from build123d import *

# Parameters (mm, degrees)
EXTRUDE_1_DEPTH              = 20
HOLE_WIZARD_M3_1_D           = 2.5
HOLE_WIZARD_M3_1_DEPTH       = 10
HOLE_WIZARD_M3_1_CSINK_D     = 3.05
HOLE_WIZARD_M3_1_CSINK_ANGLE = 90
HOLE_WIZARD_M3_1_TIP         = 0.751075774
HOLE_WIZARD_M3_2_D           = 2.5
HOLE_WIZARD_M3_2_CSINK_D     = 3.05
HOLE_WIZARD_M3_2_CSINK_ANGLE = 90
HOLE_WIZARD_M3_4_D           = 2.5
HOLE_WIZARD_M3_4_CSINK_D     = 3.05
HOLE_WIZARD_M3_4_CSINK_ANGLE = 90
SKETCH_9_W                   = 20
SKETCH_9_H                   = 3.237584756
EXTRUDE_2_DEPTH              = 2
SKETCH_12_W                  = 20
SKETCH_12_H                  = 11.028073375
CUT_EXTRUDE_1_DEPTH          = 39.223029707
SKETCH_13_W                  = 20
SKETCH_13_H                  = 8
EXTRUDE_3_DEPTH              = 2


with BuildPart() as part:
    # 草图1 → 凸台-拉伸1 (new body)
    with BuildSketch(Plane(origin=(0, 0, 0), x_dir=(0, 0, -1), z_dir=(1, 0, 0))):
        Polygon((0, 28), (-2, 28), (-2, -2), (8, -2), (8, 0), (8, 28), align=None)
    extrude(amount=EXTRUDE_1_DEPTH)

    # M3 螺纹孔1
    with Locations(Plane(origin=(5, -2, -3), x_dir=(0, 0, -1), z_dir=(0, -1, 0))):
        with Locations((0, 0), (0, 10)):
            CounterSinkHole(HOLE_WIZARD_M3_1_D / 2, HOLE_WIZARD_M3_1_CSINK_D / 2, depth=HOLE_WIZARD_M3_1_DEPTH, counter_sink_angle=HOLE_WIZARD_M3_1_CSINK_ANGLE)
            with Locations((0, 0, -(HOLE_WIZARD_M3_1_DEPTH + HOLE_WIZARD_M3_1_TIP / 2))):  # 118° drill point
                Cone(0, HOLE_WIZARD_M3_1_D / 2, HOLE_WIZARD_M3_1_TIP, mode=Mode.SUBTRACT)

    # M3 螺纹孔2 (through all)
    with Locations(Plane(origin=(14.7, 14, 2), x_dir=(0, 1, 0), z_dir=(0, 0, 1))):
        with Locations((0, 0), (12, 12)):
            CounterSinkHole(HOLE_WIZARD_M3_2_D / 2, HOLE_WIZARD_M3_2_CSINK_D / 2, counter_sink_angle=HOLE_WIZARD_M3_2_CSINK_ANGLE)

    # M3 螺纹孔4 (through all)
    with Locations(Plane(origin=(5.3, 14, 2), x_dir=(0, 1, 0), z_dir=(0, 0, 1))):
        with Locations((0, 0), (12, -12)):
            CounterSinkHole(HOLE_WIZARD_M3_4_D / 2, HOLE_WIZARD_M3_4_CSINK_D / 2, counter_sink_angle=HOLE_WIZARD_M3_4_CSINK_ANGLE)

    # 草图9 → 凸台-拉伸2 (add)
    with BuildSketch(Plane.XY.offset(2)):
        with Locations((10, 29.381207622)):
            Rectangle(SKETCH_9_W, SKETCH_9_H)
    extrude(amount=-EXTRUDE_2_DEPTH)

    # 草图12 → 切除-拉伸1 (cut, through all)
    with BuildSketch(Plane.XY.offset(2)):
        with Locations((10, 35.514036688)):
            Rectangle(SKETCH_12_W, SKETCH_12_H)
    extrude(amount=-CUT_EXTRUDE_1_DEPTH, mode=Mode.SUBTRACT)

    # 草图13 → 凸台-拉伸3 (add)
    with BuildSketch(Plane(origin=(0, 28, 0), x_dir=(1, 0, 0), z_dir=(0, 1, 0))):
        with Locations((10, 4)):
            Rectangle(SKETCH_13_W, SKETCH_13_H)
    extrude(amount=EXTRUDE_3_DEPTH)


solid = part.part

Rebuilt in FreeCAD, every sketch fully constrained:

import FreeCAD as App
import Part
import Sketcher


def add_polygon(sketch, points):
    """Adds a closed chain of lines whose ends are joined by coincident constraints."""
    first, n = sketch.GeometryCount, len(points)
    for a, b in zip(points, points[1:] + points[:1]):
        sketch.addGeometry(Part.LineSegment(App.Vector(*a, 0), App.Vector(*b, 0)), False)
    for i in range(n):
        sketch.addConstraint(Sketcher.Constraint("Coincident", first + i, 2, first + (i + 1) % n, 1))

doc = App.newDocument("Part")
body = doc.addObject("PartDesign::Body", "Body")

# Sketch on YZ plane
sketch1 = body.newObject("Sketcher::SketchObject", "Sketch")
sketch1.AttachmentSupport = (doc.getObject("YZ_Plane"), [""])
sketch1.MapMode = "FlatFace"
add_polygon(sketch1, [(28, 2), (-2, 2), (-2, -8), (28, -8)])  # lines 0-3
sketch1.addConstraint([
    Sketcher.Constraint("Horizontal", 0),
    Sketcher.Constraint("Vertical", 1),
    Sketcher.Constraint("Horizontal", 2),
    Sketcher.Constraint("Vertical", 3),
    Sketcher.Constraint("DistanceX", 0, 2, 0, 1, 30.0),
    Sketcher.Constraint("DistanceY", 1, 2, 1, 1, 10.0),
    Sketcher.Constraint("DistanceX", 0, 2, -1, 1, 2.0),
    Sketcher.Constraint("DistanceY", -1, 1, 0, 2, 2.0),
])
pad1 = body.newObject("PartDesign::Pad", "Pad")
pad1.Profile = sketch1
pad1.Length = 20

# Sketch on XZ plane
sketch2 = body.newObject("Sketcher::SketchObject", "Sketch001")
sketch2.AttachmentSupport = (doc.getObject("XZ_Plane"), [""])
sketch2.MapMode = "FlatFace"
sketch2.AttachmentOffset = App.Placement(App.Vector(0, 0, 2), App.Rotation())
sketch2.addGeometry([
    Part.Circle(App.Vector(5, -3, 0), App.Vector(0, 0, 1), 1.2),
    Part.Circle(App.Vector(15, -3, 0), App.Vector(0, 0, 1), 1.2),
], False)
sketch2.addConstraint([
    Sketcher.Constraint("Equal", 0, 1),
    Sketcher.Constraint("Horizontal", 0, 3, 1, 3),
    Sketcher.Constraint("Diameter", 0, 2.5),
    Sketcher.Constraint("DistanceX", -1, 1, 0, 3, 5.0),
    Sketcher.Constraint("DistanceY", 0, 3, -1, 1, 3.0),
    Sketcher.Constraint("DistanceX", -1, 1, 1, 3, 15.0),
])
doc.recompute()
hole = body.newObject("PartDesign::Hole", "Hole")
hole.Profile = sketch2
hole.ThreadType = "None"
hole.Diameter = 2.5
hole.DepthType = "Dimension"
hole.Depth = 10
hole.DrillPoint = "Angled"
hole.DrillPointAngle = 118
hole.HoleCutType = "Countersink"
hole.HoleCutDiameter = 3.05
hole.HoleCutCountersinkAngle = 90

# Sketch on XY plane
sketch3 = body.newObject("Sketcher::SketchObject", "Sketch002")
sketch3.AttachmentSupport = (doc.getObject("XY_Plane"), [""])
sketch3.MapMode = "FlatFace"
sketch3.AttachmentOffset = App.Placement(App.Vector(0, 0, 2), App.Rotation())
sketch3.addGeometry([
    Part.Circle(App.Vector(14.7, 14, 0), App.Vector(0, 0, 1), 1.2),
    Part.Circle(App.Vector(2.7, 26, 0), App.Vector(0, 0, 1), 1.2),
], False)
sketch3.addConstraint([
    Sketcher.Constraint("Equal", 0, 1),
    Sketcher.Constraint("Diameter", 0, 2.5),
    Sketcher.Constraint("DistanceY", -1, 1, 0, 3, 14.0),
    Sketcher.Constraint("DistanceY", -1, 1, 1, 3, 26.0),
    Sketcher.Constraint("DistanceX", 1, 3, 0, 3, 12.0),
    Sketcher.Constraint("DistanceX", -1, 1, 0, 3, 14.7),
])
doc.recompute()
hole2 = body.newObject("PartDesign::Hole", "Hole001")
hole2.Profile = sketch3
hole2.ThreadType = "None"
hole2.Diameter = 2.5
hole2.DepthType = "ThroughAll"
hole2.HoleCutType = "Countersink"
hole2.HoleCutDiameter = 3.05
hole2.HoleCutCountersinkAngle = 90

# Sketch on XY plane
sketch4 = body.newObject("Sketcher::SketchObject", "Sketch003")
sketch4.AttachmentSupport = (doc.getObject("XY_Plane"), [""])
sketch4.MapMode = "FlatFace"
sketch4.AttachmentOffset = App.Placement(App.Vector(0, 0, 2), App.Rotation())
sketch4.addGeometry([
    Part.Circle(App.Vector(5.3, 14, 0), App.Vector(0, 0, 1), 1.2),
    Part.Circle(App.Vector(17.3, 26, 0), App.Vector(0, 0, 1), 1.2),
], False)
sketch4.addConstraint([
    Sketcher.Constraint("Equal", 0, 1),
    Sketcher.Constraint("Diameter", 0, 2.5),
    Sketcher.Constraint("DistanceY", -1, 1, 0, 3, 14.0),
    Sketcher.Constraint("DistanceY", -1, 1, 1, 3, 26.0),
    Sketcher.Constraint("DistanceX", 0, 3, 1, 3, 12.0),
    Sketcher.Constraint("DistanceX", -1, 1, 0, 3, 5.3),
])
doc.recompute()
hole3 = body.newObject("PartDesign::Hole", "Hole002")
hole3.Profile = sketch4
hole3.ThreadType = "None"
hole3.Diameter = 2.5
hole3.DepthType = "ThroughAll"
hole3.HoleCutType = "Countersink"
hole3.HoleCutDiameter = 3.05
hole3.HoleCutCountersinkAngle = 90

# Sketch on XY plane
sketch5 = body.newObject("Sketcher::SketchObject", "Sketch004")
sketch5.AttachmentSupport = (doc.getObject("XY_Plane"), [""])
sketch5.MapMode = "FlatFace"
sketch5.AttachmentOffset = App.Placement(App.Vector(0, 0, 2), App.Rotation())
add_polygon(sketch5, [(0, 31), (0, 27.8), (20, 27.8), (20, 31)])  # lines 0-3
sketch5.addConstraint([
    Sketcher.Constraint("Vertical", 0),
    Sketcher.Constraint("Horizontal", 1),
    Sketcher.Constraint("Vertical", 2),
    Sketcher.Constraint("Horizontal", 3),
    Sketcher.Constraint("PointOnObject", 0, 2, -2),
    Sketcher.Constraint("DistanceX", 1, 1, 1, 2, 20.0),
    Sketcher.Constraint("DistanceY", -1, 1, 2, 2, 31.0),
    Sketcher.Constraint("DistanceY", 0, 2, 0, 1, 3.237585),
])
pad2 = body.newObject("PartDesign::Pad", "Pad001")
pad2.Profile = sketch5
pad2.Length = 2
pad2.Reversed = True

# Sketch on XY plane
sketch6 = body.newObject("Sketcher::SketchObject", "Sketch005")
sketch6.AttachmentSupport = (doc.getObject("XY_Plane"), [""])
sketch6.MapMode = "FlatFace"
sketch6.AttachmentOffset = App.Placement(App.Vector(0, 0, 2), App.Rotation())
add_polygon(sketch6, [(0, 41), (0, 30), (20, 30), (20, 41)])  # lines 0-3
sketch6.addConstraint([
    Sketcher.Constraint("Vertical", 0),
    Sketcher.Constraint("Horizontal", 1),
    Sketcher.Constraint("Vertical", 2),
    Sketcher.Constraint("Horizontal", 3),
    Sketcher.Constraint("PointOnObject", 0, 2, -2),
    Sketcher.Constraint("DistanceX", 1, 1, 1, 2, 20.0),
    Sketcher.Constraint("DistanceY", -1, 1, 0, 2, 30.0),
    Sketcher.Constraint("DistanceY", 0, 2, 0, 1, 11.028073),
])
pocket1 = body.newObject("PartDesign::Pocket", "Pocket")
pocket1.Profile = sketch6
pocket1.Type = "ThroughAll"

# Sketch on XZ plane
sketch7 = body.newObject("Sketcher::SketchObject", "Sketch006")
sketch7.AttachmentSupport = (doc.getObject("XZ_Plane"), [""])
sketch7.MapMode = "FlatFace"
sketch7.AttachmentOffset = App.Placement(App.Vector(0, 0, -28), App.Rotation())
add_polygon(sketch7, [(0, -8), (0, 0), (20, 0), (20, -8)])  # lines 0-3
sketch7.addConstraint([
    Sketcher.Constraint("Vertical", 0),
    Sketcher.Constraint("Horizontal", 1),
    Sketcher.Constraint("Vertical", 2),
    Sketcher.Constraint("Horizontal", 3),
    Sketcher.Constraint("Coincident", 0, 2, -1, 1),
    Sketcher.Constraint("DistanceX", 1, 1, 1, 2, 20.0),
    Sketcher.Constraint("DistanceY", 0, 1, 0, 2, 8.0),
])
pad3 = body.newObject("PartDesign::Pad", "Pad002")
pad3.Profile = sketch7
pad3.Length = 2
pad3.Reversed = True

doc.recompute()
